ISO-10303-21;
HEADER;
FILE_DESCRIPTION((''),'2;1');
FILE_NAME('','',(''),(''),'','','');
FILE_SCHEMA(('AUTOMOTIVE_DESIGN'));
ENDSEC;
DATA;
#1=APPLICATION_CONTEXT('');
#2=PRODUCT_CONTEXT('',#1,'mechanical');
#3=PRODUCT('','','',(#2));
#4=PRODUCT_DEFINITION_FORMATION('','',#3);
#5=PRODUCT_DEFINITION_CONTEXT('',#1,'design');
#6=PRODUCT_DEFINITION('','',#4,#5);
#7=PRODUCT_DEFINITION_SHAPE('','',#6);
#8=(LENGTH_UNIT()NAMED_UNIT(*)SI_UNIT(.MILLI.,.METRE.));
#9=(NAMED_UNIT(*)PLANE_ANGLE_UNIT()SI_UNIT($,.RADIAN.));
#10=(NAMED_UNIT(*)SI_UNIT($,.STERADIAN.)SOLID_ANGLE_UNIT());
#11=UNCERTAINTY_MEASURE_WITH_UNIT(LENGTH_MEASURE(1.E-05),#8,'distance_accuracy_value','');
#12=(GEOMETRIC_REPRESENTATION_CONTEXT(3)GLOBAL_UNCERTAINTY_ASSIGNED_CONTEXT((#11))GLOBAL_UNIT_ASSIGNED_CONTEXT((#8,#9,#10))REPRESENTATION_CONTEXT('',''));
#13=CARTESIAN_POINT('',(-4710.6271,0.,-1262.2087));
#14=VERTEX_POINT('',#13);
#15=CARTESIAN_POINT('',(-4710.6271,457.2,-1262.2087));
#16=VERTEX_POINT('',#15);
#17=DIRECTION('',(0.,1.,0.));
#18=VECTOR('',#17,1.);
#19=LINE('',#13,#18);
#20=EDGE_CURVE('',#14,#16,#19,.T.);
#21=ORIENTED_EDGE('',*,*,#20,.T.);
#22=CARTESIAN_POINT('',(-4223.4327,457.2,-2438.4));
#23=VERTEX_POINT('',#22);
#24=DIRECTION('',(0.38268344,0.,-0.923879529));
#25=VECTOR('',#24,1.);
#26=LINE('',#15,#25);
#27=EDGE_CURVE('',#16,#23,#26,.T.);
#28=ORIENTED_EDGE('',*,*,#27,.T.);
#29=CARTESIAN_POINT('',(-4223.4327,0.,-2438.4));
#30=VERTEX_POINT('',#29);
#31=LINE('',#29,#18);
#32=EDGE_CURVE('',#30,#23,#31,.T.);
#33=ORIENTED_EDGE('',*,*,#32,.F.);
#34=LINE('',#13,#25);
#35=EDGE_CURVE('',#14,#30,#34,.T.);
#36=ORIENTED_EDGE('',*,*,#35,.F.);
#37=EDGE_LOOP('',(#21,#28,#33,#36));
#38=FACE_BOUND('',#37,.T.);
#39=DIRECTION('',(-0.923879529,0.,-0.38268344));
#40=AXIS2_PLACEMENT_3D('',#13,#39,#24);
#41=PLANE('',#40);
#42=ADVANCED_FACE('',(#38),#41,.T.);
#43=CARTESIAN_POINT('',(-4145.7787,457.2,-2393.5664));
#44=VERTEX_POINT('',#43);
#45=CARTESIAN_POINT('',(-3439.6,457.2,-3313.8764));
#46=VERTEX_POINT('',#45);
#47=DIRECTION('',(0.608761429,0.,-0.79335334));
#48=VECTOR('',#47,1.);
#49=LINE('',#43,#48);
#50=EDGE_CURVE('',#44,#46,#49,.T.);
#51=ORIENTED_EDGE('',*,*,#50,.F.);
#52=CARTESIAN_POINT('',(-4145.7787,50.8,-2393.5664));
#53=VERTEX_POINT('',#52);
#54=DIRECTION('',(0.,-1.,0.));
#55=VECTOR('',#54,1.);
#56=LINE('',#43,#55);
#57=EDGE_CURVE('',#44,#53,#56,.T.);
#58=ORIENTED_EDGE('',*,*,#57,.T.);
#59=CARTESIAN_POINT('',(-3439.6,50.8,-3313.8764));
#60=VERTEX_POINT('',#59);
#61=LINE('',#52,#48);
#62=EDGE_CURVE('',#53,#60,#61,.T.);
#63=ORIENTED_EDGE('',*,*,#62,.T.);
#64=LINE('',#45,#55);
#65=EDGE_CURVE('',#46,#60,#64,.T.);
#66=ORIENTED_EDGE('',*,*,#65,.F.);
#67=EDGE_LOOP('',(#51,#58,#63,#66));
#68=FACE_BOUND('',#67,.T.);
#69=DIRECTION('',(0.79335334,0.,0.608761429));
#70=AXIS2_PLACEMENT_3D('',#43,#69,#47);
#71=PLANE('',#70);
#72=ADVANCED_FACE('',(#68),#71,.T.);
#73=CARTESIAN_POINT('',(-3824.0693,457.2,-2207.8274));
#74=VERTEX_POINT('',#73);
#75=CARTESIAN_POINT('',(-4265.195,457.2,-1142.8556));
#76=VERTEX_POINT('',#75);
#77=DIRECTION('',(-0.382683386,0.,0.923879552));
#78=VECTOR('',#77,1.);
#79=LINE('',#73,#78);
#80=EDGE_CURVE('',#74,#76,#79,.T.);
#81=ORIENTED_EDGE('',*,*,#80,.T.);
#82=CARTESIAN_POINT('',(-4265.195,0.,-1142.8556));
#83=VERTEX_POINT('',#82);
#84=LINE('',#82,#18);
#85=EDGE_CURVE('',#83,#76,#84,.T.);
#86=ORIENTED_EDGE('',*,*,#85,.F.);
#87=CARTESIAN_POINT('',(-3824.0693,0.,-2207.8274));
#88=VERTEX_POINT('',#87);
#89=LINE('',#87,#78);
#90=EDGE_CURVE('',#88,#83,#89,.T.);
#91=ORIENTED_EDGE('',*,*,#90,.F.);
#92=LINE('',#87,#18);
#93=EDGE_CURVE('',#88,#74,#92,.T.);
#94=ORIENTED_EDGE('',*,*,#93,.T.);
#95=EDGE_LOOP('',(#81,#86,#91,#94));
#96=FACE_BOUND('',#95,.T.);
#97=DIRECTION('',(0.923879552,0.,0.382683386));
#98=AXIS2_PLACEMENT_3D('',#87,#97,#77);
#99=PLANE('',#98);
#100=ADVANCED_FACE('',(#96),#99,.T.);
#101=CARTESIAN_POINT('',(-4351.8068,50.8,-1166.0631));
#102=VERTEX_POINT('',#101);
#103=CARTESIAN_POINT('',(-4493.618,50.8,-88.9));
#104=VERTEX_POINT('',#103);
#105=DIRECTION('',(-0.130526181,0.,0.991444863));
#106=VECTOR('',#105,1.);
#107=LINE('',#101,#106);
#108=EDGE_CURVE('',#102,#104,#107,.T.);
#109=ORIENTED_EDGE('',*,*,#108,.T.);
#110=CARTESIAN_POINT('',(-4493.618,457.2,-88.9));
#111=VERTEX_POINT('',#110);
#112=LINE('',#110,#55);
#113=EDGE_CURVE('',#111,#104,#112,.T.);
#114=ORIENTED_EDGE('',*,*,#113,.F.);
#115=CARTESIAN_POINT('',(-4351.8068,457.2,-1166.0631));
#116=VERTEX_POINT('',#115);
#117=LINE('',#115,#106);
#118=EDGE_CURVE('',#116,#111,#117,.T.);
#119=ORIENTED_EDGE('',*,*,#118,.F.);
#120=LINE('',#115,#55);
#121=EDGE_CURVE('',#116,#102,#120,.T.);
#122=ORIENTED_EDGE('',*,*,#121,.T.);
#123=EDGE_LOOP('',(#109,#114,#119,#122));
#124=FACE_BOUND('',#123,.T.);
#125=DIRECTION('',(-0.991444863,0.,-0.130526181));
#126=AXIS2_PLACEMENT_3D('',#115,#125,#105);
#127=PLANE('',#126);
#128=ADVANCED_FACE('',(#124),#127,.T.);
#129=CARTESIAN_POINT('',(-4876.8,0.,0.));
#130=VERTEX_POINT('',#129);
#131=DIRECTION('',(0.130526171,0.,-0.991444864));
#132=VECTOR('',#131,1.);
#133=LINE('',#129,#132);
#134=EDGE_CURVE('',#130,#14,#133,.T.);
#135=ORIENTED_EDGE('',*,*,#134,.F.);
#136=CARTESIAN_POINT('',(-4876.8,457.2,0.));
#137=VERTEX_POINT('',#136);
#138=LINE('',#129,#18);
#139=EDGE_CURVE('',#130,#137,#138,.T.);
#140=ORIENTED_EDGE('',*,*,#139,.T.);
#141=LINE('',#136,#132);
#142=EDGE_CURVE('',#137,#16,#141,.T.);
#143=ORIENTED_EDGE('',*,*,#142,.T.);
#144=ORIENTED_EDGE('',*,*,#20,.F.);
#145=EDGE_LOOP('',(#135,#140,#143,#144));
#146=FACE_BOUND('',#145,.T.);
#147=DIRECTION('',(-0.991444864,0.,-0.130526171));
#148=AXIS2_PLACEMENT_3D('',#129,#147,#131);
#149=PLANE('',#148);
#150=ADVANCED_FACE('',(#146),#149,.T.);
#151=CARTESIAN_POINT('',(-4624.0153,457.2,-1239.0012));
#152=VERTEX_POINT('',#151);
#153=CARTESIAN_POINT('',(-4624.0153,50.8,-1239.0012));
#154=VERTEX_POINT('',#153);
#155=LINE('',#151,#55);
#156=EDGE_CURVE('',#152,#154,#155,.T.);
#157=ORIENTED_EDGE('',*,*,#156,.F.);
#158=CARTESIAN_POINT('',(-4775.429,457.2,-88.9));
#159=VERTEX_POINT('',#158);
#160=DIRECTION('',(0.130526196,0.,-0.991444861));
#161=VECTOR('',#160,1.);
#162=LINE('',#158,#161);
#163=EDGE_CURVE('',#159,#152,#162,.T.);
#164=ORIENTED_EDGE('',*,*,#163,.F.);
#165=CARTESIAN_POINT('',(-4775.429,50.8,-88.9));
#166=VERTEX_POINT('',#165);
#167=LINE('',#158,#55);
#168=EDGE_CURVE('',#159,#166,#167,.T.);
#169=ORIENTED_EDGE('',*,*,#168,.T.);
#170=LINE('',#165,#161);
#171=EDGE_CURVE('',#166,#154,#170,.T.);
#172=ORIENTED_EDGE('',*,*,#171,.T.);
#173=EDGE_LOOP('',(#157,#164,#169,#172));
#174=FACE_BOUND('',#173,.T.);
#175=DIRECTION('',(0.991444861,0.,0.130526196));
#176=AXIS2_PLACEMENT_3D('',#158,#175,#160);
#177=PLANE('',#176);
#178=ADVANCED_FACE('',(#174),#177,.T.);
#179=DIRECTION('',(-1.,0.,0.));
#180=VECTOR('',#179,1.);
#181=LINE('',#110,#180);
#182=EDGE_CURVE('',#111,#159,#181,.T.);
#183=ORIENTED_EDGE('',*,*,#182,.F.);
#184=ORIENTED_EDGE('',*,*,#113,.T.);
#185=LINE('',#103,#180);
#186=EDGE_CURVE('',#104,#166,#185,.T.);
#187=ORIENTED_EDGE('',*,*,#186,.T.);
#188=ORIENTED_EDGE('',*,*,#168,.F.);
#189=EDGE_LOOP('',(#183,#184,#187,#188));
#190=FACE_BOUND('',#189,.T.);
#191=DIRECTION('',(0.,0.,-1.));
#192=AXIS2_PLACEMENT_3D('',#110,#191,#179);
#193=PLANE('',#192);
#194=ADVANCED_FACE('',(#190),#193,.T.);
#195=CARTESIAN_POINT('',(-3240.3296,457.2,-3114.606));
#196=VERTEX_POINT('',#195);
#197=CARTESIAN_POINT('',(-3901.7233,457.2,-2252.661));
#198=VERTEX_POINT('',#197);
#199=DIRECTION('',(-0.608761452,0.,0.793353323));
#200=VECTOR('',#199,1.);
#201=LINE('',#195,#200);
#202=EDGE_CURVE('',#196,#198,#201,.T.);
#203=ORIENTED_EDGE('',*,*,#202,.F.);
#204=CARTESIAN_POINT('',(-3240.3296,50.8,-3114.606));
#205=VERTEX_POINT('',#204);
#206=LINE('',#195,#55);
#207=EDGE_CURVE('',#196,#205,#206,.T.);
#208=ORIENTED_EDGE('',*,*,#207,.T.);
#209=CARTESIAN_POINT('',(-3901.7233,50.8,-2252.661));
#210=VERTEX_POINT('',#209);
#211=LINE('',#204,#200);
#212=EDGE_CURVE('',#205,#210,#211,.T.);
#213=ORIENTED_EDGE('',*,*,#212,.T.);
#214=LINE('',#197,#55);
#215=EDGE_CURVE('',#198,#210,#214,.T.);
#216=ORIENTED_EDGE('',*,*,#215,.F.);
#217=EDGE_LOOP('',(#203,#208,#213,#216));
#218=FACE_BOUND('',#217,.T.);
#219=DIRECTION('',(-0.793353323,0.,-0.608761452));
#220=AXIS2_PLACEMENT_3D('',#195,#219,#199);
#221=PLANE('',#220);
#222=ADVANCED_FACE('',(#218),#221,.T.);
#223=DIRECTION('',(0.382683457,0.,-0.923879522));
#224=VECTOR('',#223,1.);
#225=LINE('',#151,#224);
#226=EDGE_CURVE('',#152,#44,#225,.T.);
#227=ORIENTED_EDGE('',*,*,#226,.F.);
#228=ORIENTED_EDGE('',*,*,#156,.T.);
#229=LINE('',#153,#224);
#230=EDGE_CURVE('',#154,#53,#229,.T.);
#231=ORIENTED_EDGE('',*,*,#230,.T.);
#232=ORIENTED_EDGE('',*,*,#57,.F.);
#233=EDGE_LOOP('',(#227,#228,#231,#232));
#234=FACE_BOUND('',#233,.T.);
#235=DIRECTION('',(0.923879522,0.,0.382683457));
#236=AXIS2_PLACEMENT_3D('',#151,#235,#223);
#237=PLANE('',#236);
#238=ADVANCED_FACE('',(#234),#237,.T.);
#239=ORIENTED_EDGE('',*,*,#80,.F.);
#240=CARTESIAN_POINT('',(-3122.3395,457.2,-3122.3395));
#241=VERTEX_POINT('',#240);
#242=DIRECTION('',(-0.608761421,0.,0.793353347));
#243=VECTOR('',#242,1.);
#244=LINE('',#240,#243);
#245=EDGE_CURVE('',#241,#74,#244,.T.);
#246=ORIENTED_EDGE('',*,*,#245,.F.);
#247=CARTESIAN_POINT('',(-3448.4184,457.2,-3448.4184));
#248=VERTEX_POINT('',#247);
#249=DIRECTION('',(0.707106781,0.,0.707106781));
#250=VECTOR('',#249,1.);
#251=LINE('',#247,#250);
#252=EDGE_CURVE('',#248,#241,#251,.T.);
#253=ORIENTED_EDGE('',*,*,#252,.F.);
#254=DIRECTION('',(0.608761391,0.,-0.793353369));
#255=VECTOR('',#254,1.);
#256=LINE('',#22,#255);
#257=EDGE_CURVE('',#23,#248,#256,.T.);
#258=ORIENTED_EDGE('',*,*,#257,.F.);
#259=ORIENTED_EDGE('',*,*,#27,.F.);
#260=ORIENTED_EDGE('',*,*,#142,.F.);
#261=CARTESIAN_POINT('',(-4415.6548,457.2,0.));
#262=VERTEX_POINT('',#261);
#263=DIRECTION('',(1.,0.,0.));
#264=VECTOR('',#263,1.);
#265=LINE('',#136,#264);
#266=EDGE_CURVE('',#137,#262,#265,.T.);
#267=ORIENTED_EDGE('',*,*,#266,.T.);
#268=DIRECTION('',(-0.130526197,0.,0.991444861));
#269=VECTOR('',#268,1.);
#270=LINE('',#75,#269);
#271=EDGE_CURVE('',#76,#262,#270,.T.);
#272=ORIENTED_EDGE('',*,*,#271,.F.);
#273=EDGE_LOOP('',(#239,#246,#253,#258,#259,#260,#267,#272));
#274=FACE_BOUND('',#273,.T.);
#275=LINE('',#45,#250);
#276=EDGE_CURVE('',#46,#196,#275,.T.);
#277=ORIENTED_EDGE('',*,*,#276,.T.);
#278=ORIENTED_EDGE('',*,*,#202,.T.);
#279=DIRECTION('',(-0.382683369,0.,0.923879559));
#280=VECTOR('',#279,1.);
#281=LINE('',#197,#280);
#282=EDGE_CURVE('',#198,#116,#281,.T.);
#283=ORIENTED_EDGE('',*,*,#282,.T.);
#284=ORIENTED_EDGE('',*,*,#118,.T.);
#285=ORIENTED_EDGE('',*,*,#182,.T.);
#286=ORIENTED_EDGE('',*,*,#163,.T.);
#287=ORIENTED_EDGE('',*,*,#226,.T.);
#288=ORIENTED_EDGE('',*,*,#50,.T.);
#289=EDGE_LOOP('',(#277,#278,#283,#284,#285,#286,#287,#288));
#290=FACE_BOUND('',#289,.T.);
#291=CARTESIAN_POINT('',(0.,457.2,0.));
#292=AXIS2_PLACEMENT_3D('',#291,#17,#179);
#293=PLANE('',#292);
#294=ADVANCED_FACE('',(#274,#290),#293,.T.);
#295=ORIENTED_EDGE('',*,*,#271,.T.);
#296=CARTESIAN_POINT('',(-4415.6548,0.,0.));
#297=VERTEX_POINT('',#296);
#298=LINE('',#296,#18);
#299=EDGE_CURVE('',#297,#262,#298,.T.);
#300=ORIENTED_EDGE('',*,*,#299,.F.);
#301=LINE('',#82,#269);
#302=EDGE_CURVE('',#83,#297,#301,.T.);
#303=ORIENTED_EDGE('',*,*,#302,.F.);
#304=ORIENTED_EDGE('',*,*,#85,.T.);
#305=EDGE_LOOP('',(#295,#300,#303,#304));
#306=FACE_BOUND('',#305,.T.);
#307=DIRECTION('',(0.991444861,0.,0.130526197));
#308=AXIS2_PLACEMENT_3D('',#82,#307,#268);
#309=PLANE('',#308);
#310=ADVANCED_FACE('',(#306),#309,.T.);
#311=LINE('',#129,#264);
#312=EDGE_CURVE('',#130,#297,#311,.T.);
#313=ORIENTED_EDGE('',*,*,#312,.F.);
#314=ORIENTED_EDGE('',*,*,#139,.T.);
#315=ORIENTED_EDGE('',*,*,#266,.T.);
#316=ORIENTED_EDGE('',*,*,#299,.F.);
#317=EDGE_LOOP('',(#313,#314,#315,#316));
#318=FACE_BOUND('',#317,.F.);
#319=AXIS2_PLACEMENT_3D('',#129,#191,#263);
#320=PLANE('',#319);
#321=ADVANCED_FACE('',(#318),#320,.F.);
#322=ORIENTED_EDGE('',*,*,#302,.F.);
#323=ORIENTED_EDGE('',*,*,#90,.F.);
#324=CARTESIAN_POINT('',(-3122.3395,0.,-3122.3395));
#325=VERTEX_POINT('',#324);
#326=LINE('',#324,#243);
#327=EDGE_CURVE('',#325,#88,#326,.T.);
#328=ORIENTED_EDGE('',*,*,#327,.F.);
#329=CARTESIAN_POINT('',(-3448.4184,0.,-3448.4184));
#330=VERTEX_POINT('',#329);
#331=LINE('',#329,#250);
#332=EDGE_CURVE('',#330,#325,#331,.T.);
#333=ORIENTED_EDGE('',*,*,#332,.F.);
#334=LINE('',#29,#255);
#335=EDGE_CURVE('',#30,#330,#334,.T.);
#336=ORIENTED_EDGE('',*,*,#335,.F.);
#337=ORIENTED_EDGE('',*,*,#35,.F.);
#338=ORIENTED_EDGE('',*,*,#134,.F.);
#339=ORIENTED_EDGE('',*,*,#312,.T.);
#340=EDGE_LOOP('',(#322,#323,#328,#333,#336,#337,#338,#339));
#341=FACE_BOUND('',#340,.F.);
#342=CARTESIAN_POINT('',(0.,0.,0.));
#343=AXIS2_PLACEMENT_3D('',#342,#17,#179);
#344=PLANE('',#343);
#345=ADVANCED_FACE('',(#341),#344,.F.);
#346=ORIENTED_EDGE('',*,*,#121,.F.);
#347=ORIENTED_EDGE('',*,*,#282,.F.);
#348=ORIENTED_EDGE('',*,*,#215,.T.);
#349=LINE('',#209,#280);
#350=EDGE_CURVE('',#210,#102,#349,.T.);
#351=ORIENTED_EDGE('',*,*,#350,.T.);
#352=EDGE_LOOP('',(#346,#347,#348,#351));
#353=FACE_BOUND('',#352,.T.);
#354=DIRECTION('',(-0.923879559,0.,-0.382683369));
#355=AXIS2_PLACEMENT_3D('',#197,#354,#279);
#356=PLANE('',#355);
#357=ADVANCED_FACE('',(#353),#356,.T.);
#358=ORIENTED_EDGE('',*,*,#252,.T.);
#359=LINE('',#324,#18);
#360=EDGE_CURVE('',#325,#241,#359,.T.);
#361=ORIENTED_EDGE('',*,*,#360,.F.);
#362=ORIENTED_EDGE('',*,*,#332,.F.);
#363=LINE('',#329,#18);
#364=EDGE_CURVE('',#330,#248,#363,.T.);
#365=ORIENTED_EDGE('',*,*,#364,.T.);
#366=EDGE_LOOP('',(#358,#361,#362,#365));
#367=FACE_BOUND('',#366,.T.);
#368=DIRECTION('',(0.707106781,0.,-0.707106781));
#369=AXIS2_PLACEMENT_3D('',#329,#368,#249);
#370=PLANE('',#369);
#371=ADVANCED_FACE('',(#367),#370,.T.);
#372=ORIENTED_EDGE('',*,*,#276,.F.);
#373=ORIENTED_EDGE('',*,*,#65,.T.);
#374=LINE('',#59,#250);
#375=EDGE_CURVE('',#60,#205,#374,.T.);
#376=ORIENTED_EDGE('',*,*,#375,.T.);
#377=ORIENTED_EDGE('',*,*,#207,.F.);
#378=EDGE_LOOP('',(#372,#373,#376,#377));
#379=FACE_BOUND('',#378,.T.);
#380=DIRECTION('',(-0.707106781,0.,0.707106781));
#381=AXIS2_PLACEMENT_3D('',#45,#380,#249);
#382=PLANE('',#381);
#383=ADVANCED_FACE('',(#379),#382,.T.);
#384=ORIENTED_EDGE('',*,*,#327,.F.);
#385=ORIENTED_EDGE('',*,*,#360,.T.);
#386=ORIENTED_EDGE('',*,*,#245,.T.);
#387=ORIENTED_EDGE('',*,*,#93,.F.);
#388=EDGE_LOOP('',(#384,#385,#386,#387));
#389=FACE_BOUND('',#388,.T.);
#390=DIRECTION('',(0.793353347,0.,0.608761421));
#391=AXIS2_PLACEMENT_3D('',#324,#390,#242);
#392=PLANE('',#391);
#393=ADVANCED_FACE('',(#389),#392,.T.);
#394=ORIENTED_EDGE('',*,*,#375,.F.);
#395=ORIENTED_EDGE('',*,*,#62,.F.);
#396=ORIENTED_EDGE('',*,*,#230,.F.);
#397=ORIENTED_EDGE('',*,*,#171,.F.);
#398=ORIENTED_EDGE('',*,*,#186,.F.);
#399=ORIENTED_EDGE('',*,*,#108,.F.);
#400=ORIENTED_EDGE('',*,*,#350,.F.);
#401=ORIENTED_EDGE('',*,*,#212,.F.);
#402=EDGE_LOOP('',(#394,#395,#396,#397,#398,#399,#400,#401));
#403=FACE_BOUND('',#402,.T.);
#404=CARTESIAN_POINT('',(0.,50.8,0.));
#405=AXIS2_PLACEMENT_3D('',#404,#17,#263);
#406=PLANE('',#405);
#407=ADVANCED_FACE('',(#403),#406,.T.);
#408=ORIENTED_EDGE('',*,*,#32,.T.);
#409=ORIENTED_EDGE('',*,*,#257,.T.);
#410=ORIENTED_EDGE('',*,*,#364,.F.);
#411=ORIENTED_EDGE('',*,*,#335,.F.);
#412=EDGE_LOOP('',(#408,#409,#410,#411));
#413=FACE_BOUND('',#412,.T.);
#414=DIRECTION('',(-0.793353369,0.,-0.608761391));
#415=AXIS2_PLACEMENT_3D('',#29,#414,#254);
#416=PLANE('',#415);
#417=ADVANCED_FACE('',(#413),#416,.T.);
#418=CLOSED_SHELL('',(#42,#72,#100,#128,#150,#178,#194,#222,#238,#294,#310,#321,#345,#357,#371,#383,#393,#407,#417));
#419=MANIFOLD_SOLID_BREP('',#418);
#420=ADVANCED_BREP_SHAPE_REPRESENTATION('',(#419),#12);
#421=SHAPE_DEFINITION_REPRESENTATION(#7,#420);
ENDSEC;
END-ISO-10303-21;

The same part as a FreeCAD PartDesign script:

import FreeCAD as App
import Part
import Sketcher
from FreeCAD import Vector
Q = App.Units.Quantity

doc = App.newDocument("Part")
body = doc.addObject("PartDesign::Body", "Body")

# Sketch on XZ plane
sketch1 = body.newObject("Sketcher::SketchObject", "Sketch")
sketch1.AttachmentSupport = (doc.getObject("XZ_Plane"), [""])
sketch1.MapMode = "FlatFace"
sketch1.addGeometry(Part.LineSegment(Vector(-4711, -1262, 0), Vector(-4877, 0, 0)), False)
sketch1.addGeometry(Part.LineSegment(Vector(-4877, 0, 0), Vector(-4416, 0, 0)), False)
sketch1.addGeometry(Part.LineSegment(Vector(-4416, 0, 0), Vector(-4265, -1143, 0)), False)
sketch1.addGeometry(Part.LineSegment(Vector(-4265, -1143, 0), Vector(-3824, -2208, 0)), False)
sketch1.addGeometry(Part.LineSegment(Vector(-3824, -2208, 0), Vector(-3122, -3122, 0)), False)
sketch1.addGeometry(Part.LineSegment(Vector(-3122, -3122, 0), Vector(-3448, -3448, 0)), False)
sketch1.addGeometry(Part.LineSegment(Vector(-3448, -3448, 0), Vector(-4223, -2438, 0)), False)
sketch1.addGeometry(Part.LineSegment(Vector(-4223, -2438, 0), Vector(-4711, -1262, 0)), False)
sketch1.addConstraint(Sketcher.Constraint("Coincident", 0, 2, 1, 1))
sketch1.addConstraint(Sketcher.Constraint("Coincident", 1, 2, 2, 1))
sketch1.addConstraint(Sketcher.Constraint("Coincident", 2, 2, 3, 1))
sketch1.addConstraint(Sketcher.Constraint("Coincident", 3, 2, 4, 1))
sketch1.addConstraint(Sketcher.Constraint("Coincident", 4, 2, 5, 1))
sketch1.addConstraint(Sketcher.Constraint("Coincident", 5, 2, 6, 1))
sketch1.addConstraint(Sketcher.Constraint("Coincident", 6, 2, 7, 1))
sketch1.addConstraint(Sketcher.Constraint("Coincident", 7, 2, 0, 1))
sketch1.addConstraint(Sketcher.Constraint("Horizontal", 1))
sketch1.addConstraint(Sketcher.Constraint("PointOnObject", 0, 2, -1))
sketch1.addConstraint(Sketcher.Constraint("Parallel", 0, 2))
sketch1.addConstraint(Sketcher.Constraint("Parallel", 4, 6))
sketch1.addConstraint(Sketcher.Constraint("Parallel", 3, 7))
sketch1.addConstraint(Sketcher.Constraint("Equal", 2, 3))
sketch1.addConstraint(Sketcher.Constraint("Equal", 3, 4))
sketch1.addConstraint(Sketcher.Constraint("Equal", 0, 6))
sketch1.addConstraint(Sketcher.Constraint("Equal", 6, 7))
sketch1.addConstraint(Sketcher.Constraint("DistanceX", 0, 2, -1, 1, Q("192 in")))
sketch1.addConstraint(Sketcher.Constraint("DistanceY", 6, 2, -1, 1, Q("96 in")))
sketch1.addConstraint(Sketcher.Constraint("Angle", 5, Q("-135 deg")))
sketch1.addConstraint(Sketcher.Constraint("Angle", 0, Q("97.5 deg")))
sketch1.addConstraint(Sketcher.Constraint("Angle", 3, Q("-67.5 deg")))
sketch1.addConstraint(Sketcher.Constraint("Angle", 4, Q("-52.5 deg")))
sketch1.addConstraint(Sketcher.Constraint("DistanceX", 1, 1, 1, 2, 461.1452))
pad1 = body.newObject("PartDesign::Pad", "Pad")
pad1.Profile = sketch1
pad1.Length = Q("18 in")
pad1.Reversed = True

# Sketch on XZ plane
sketch2 = body.newObject("Sketcher::SketchObject", "Sketch001")
sketch2.AttachmentSupport = (doc.getObject("XZ_Plane"), [""])
sketch2.MapMode = "FlatFace"
sketch2.AttachmentOffset = App.Placement(Vector(0, 0, -18 * 25.4), App.Rotation())
sketch2.addGeometry(Part.LineSegment(Vector(-3440, -3314, 0), Vector(-4146, -2394, 0)), False)
sketch2.addGeometry(Part.LineSegment(Vector(-4146, -2394, 0), Vector(-4624, -1239, 0)), False)
sketch2.addGeometry(Part.LineSegment(Vector(-4624, -1239, 0), Vector(-4775, -89, 0)), False)
sketch2.addGeometry(Part.LineSegment(Vector(-4775, -89, 0), Vector(-4494, -89, 0)), False)
sketch2.addGeometry(Part.LineSegment(Vector(-4494, -89, 0), Vector(-4352, -1166, 0)), False)
sketch2.addGeometry(Part.LineSegment(Vector(-4352, -1166, 0), Vector(-3902, -2253, 0)), False)
sketch2.addGeometry(Part.LineSegment(Vector(-3902, -2253, 0), Vector(-3240, -3115, 0)), False)
sketch2.addGeometry(Part.LineSegment(Vector(-3240, -3115, 0), Vector(-3440, -3314, 0)), False)
sketch2.addConstraint(Sketcher.Constraint("Coincident", 0, 2, 1, 1))
sketch2.addConstraint(Sketcher.Constraint("Coincident", 1, 2, 2, 1))
sketch2.addConstraint(Sketcher.Constraint("Coincident", 2, 2, 3, 1))
sketch2.addConstraint(Sketcher.Constraint("Coincident", 3, 2, 4, 1))
sketch2.addConstraint(Sketcher.Constraint("Coincident", 4, 2, 5, 1))
sketch2.addConstraint(Sketcher.Constraint("Coincident", 5, 2, 6, 1))
sketch2.addConstraint(Sketcher.Constraint("Coincident", 6, 2, 7, 1))
sketch2.addConstraint(Sketcher.Constraint("Coincident", 7, 2, 0, 1))
sketch2.addConstraint(Sketcher.Constraint("Horizontal", 3))
sketch2.addConstraint(Sketcher.Constraint("Parallel", 2, 4))
sketch2.addConstraint(Sketcher.Constraint("Parallel", 1, 5))
sketch2.addConstraint(Sketcher.Constraint("Parallel", 0, 6))
sketch2.addConstraint(Sketcher.Constraint("Equal", 0, 2))
sketch2.addConstraint(Sketcher.Constraint("Equal", 4, 6))
sketch2.addConstraint(Sketcher.Constraint("DistanceY", 2, 2, -1, 1, Q("3.5 in")))
sketch2.addConstraint(Sketcher.Constraint("Angle", 7, Q("-135 deg")))
sketch2.addConstraint(Sketcher.Constraint("Angle", 0, Q("127.5 deg")))
sketch2.addConstraint(Sketcher.Constraint("Angle", 1, Q("112.5 deg")))
sketch2.addConstraint(Sketcher.Constraint("Angle", 2, Q("97.5 deg")))
sketch2.addConstraint(Sketcher.Constraint("DistanceY", 4, 2, -1, 1, Q("45.908 in")))
sketch2.addConstraint(Sketcher.Constraint("DistanceY", 7, 2, 1, 2, Q("81.688 in")))
sketch2.addConstraint(Sketcher.Constraint("Distance", 0, Q("45.6703 in")))
sketch2.addConstraint(Sketcher.Constraint("DistanceX", 3, 1, 3, 2, 281.811))
sketch2.addConstraint(Sketcher.Constraint("DistanceX", 3, 2, -1, 1, Q("176.9141 in")))
pocket1 = body.newObject("PartDesign::Pocket", "Pocket")
pocket1.Profile = sketch2
pocket1.Length = Q("16 in")
pocket1.Reversed = True

doc.recompute()
